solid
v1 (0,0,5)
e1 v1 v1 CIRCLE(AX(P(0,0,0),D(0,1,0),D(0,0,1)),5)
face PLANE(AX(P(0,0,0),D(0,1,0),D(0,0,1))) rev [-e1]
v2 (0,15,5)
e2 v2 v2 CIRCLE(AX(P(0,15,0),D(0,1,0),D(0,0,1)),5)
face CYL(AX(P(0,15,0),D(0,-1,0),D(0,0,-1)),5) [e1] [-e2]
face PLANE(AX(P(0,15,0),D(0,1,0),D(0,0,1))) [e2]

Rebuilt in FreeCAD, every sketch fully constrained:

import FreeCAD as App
import Part
import Sketcher

V = App.Vector

doc = App.newDocument("Part")
params = doc.addObject("Spreadsheet::Sheet", "Params")
for row, (alias, value) in enumerate([
    ("sketch1_diameter", "10 mm"),
    ("pad1_length", "15 mm"),
], start=1):
    params.set(f"A{row}", alias)
    params.set(f"B{row}", "=" + value)
    params.setAlias(f"B{row}", alias)

body = doc.addObject("PartDesign::Body", "Body")

# Sketch on XZ plane
sketch1 = body.newObject("Sketcher::SketchObject", "Sketch")
sketch1.AttachmentSupport = (doc.getObject("XZ_Plane"), [""])
sketch1.MapMode = "FlatFace"
sketch1.addGeometry(Part.Circle(V(0, 0, 0), V(0, 0, 1), 5), False)
sketch1.addConstraint(Sketcher.Constraint("Coincident", 0, 3, -1, 1))
sketch1.addConstraint(Sketcher.Constraint("Diameter", 0, 10.0))
sketch1.setExpression("Constraints[1]", "Params.sketch1_diameter")
pad1 = body.newObject("PartDesign::Pad", "Pad")
pad1.Profile = sketch1
pad1.setExpression("Length", "Params.pad1_length")
pad1.Reversed = True

doc.recompute()
